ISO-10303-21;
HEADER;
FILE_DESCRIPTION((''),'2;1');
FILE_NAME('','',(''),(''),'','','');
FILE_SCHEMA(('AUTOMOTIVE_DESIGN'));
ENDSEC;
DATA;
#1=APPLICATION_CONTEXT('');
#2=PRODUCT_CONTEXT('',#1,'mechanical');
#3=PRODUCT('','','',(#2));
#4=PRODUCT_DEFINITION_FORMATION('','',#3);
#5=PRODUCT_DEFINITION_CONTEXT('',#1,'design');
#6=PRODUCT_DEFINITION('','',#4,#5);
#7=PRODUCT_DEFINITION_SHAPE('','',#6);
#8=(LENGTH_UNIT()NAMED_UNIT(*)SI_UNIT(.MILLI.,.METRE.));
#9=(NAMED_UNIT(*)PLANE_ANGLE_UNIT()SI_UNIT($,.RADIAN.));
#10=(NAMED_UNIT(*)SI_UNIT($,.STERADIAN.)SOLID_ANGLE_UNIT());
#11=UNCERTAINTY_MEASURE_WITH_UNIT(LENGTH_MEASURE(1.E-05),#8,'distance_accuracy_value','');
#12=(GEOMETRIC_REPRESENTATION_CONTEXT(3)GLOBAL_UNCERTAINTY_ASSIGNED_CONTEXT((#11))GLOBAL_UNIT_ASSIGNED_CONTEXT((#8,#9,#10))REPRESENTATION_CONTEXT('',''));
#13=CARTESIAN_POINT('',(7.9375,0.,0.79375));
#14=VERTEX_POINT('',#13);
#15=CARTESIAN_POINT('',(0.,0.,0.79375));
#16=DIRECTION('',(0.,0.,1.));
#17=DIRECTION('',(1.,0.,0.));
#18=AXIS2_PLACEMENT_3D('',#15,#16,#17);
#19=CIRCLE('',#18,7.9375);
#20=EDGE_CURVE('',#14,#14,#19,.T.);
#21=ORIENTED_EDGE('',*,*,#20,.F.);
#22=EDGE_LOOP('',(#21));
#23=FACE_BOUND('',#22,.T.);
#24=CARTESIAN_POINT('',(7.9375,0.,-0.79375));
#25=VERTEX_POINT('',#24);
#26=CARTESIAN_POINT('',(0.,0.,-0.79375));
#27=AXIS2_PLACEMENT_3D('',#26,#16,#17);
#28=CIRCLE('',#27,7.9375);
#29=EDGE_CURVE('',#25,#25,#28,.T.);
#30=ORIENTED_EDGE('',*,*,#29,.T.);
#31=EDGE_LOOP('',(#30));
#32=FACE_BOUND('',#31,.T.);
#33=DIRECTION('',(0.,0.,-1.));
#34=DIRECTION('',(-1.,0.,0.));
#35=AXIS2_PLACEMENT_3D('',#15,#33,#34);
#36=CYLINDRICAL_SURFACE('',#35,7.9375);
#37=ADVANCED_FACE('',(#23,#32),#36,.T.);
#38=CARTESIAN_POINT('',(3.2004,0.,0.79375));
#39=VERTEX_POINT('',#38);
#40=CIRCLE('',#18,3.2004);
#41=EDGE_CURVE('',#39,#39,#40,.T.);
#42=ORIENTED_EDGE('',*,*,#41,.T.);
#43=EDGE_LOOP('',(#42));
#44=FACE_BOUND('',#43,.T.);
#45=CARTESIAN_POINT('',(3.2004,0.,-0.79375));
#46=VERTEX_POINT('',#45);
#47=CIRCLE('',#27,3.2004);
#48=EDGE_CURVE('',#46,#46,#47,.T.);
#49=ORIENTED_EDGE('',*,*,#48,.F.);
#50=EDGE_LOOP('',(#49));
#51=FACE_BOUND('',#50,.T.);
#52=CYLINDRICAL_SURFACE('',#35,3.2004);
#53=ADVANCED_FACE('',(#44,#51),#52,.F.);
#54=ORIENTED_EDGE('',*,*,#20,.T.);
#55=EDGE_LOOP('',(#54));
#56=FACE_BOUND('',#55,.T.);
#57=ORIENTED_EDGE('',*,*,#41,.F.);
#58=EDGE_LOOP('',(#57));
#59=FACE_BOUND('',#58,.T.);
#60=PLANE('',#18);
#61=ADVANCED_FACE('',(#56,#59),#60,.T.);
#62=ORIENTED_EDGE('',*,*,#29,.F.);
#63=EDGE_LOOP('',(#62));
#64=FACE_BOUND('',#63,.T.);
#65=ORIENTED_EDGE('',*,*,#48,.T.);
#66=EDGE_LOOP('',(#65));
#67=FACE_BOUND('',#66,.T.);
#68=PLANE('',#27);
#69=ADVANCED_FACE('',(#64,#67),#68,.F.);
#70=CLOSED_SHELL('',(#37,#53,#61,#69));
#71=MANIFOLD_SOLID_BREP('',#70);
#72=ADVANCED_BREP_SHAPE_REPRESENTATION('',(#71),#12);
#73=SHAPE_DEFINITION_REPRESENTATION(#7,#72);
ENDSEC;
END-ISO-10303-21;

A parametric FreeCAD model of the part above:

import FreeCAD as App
import Part
import Sketcher
Q = App.Units.Quantity

doc = App.newDocument("Part")
params = doc.addObject("Spreadsheet::Sheet", "Params")
for row, (alias, value) in enumerate([
    ("sketch1_diameter", "0.625 in"),
    ("sketch1_diameter2", "0.252 in"),
    ("pad1_length", "0.0625 in"),
], start=1):
    params.set(f"A{row}", alias)
    params.set(f"B{row}", "=" + value)
    params.setAlias(f"B{row}", alias)

body = doc.addObject("PartDesign::Body", "Body")

# Sketch on XY plane
sketch1 = body.newObject("Sketcher::SketchObject", "Sketch")
sketch1.AttachmentSupport = (doc.getObject("XY_Plane"), [""])
sketch1.MapMode = "FlatFace"
sketch1.addGeometry([
    Part.Circle(App.Vector(0, 0, 0), App.Vector(0, 0, 1), 7.9),
    Part.Circle(App.Vector(0, 0, 0), App.Vector(0, 0, 1), 3.2),
], False)
sketch1.addConstraint([
    Sketcher.Constraint("Coincident", 0, 3, -1, 1),
    Sketcher.Constraint("Coincident", 1, 3, -1, 1),
    Sketcher.Constraint("Diameter", 0, Q("0.625 in")),
    Sketcher.Constraint("Diameter", 1, Q("0.252 in")),
])
sketch1.setExpression("Constraints[2]", "Params.sketch1_diameter")
sketch1.setExpression("Constraints[3]", "Params.sketch1_diameter2")
pad1 = body.newObject("PartDesign::Pad", "Pad")
pad1.Profile = sketch1
pad1.setExpression("Length", "Params.pad1_length")
pad1.Midplane = True

doc.recompute()
